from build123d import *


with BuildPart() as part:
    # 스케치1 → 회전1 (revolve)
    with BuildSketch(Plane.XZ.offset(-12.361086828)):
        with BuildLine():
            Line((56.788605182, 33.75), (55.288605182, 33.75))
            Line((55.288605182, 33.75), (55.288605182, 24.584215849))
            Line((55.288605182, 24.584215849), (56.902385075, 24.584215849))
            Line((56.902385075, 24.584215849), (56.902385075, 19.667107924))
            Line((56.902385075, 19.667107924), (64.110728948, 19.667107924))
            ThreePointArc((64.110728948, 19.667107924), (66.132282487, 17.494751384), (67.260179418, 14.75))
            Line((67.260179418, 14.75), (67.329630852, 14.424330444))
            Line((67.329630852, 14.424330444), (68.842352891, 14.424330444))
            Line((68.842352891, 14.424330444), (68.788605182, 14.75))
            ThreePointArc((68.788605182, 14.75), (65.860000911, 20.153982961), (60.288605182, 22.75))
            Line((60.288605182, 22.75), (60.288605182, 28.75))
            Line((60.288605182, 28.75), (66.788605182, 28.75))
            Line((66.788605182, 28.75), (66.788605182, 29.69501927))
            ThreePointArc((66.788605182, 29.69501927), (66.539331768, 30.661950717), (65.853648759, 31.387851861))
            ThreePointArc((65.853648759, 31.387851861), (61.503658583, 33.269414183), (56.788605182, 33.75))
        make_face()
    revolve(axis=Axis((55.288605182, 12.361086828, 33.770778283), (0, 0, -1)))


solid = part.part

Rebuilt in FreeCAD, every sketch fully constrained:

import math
import FreeCAD as App
import Part
import Sketcher

doc = App.newDocument("Part")
params = doc.addObject("Spreadsheet::Sheet", "Params")
for row, (alias, value) in enumerate([
    ("sketch1_radius", "2 mm"),
    ("sketch1_height", "6 mm"),
    ("sketch1_width", "1.5 mm"),
    ("sketch1_width2", "6.5 mm"),
    ("revolution_angle", "360 deg"),
], start=1):
    params.set(f"A{row}", alias)
    params.set(f"B{row}", "=" + value)
    params.setAlias(f"B{row}", alias)

body = doc.addObject("PartDesign::Body", "Body")

# Sketch on XZ plane
sketch1 = body.newObject("Sketcher::SketchObject", "Sketch")
sketch1.AttachmentSupport = (doc.getObject("XZ_Plane"), [""])
sketch1.MapMode = "FlatFace"
sketch1.AttachmentOffset = App.Placement(App.Vector(0, 0, -12.361087), App.Rotation())
sketch1.addGeometry([
    Part.LineSegment(App.Vector(56.79, 33.75, 0), App.Vector(55.29, 33.75, 0)),  # 0
    Part.LineSegment(App.Vector(55.29, 33.75, 0), App.Vector(55.29, 24.58, 0)),  # 1
    Part.LineSegment(App.Vector(55.29, 24.58, 0), App.Vector(56.9, 24.58, 0)),  # 2
    Part.LineSegment(App.Vector(56.9, 24.58, 0), App.Vector(56.9, 19.67, 0)),  # 3
    Part.LineSegment(App.Vector(56.9, 19.67, 0), App.Vector(64.11, 19.67, 0)),  # 4
    Part.ArcOfCircle(Part.Circle(App.Vector(59.15, 13.02, 0), App.Vector(0, 0, 1), 8.3), math.radians(12), math.radians(53)),  # 5
    Part.LineSegment(App.Vector(67.26, 14.75, 0), App.Vector(67.33, 14.42, 0)),  # 6
    Part.LineSegment(App.Vector(67.33, 14.42, 0), App.Vector(68.84, 14.42, 0)),  # 7
    Part.LineSegment(App.Vector(68.84, 14.42, 0), App.Vector(68.79, 14.75, 0)),  # 8
    Part.ArcOfCircle(Part.Circle(App.Vector(59.15, 13.02, 0), App.Vector(0, 0, 1), 9.8), math.radians(10), math.radians(83)),  # 9
    Part.LineSegment(App.Vector(60.29, 22.75, 0), App.Vector(60.29, 28.75, 0)),  # 10
    Part.LineSegment(App.Vector(60.29, 28.75, 0), App.Vector(66.79, 28.75, 0)),  # 11
    Part.LineSegment(App.Vector(66.79, 28.75, 0), App.Vector(66.79, 29.7, 0)),  # 12
    Part.ArcOfCircle(Part.Circle(App.Vector(64.79, 29.7, 0), App.Vector(0, 0, 1), 2), math.radians(0), math.radians(58)),  # 13
    Part.ArcOfCircle(Part.Circle(App.Vector(57.59, 18.26, 0), App.Vector(0, 0, 1), 15.52), math.radians(58), math.radians(93)),  # 14
], False)
sketch1.addGeometry(Part.LineSegment(App.Vector(55.29, 33.75, 0), App.Vector(55.29, 13.02, 0)), True)  # axis
sketch1.addConstraint([
    Sketcher.Constraint("Coincident", 0, 2, 1, 1),
    Sketcher.Constraint("Coincident", 1, 2, 2, 1),
    Sketcher.Constraint("Coincident", 2, 2, 3, 1),
    Sketcher.Constraint("Coincident", 3, 2, 4, 1),
    Sketcher.Constraint("Coincident", 4, 2, 5, 2),
    Sketcher.Constraint("Tangent", 5, 1, 6, 1),
    Sketcher.Constraint("Coincident", 6, 2, 7, 1),
    Sketcher.Constraint("Coincident", 7, 2, 8, 1),
    Sketcher.Constraint("Coincident", 8, 2, 9, 1),
    Sketcher.Constraint("Coincident", 9, 2, 10, 1),
    Sketcher.Constraint("Coincident", 10, 2, 11, 1),
    Sketcher.Constraint("Coincident", 11, 2, 12, 1),
    Sketcher.Constraint("Tangent", 12, 2, 13, 1),
    Sketcher.Constraint("Tangent", 13, 2, 14, 1),
    Sketcher.Constraint("Coincident", 14, 2, 0, 1),
    Sketcher.Constraint("Horizontal", 0),
    Sketcher.Constraint("Vertical", 1),
    Sketcher.Constraint("Horizontal", 2),
    Sketcher.Constraint("Vertical", 3),
    Sketcher.Constraint("Horizontal", 4),
    Sketcher.Constraint("Horizontal", 7),
    Sketcher.Constraint("Vertical", 10),
    Sketcher.Constraint("Horizontal", 11),
    Sketcher.Constraint("Vertical", 12),
    Sketcher.Constraint("Vertical", 15),
    Sketcher.Constraint("Coincident", 9, 3, 5, 3),
    Sketcher.Constraint("Coincident", 15, 1, 0, 2),
    Sketcher.Constraint("Horizontal", 5, 1, 8, 2),
    Sketcher.Constraint("Horizontal", 9, 3, 15, 2),
    Sketcher.Constraint("Radius", 13, 2.0),
    Sketcher.Constraint("DistanceY", 10, 1, 10, 2, 6.0),
    Sketcher.Constraint("DistanceX", 0, 2, 0, 1, 1.5),
    Sketcher.Constraint("DistanceX", 11, 1, 11, 2, 6.5),
    Sketcher.Constraint("DistanceX", 1, 2, 9, 2, 5.0),
    Sketcher.Constraint("DistanceY", 10, 2, 0, 2, 5.0),
    Sketcher.Constraint("DistanceY", -1, 1, 0, 2, 33.75),
    Sketcher.Constraint("DistanceY", -1, 1, 5, 1, 14.75),
    Sketcher.Constraint("Radius", 5, 8.297561),
    Sketcher.Constraint("Radius", 9, 9.797561),
    Sketcher.Constraint("Radius", 14, 15.51549),
    Sketcher.Constraint("DistanceY", 15, 2, 15, 1, 20.730601),
    Sketcher.Constraint("DistanceX", 2, 1, 2, 2, 1.61378),
    Sketcher.Constraint("DistanceY", 12, 1, 12, 2, 0.945019),
    Sketcher.Constraint("DistanceX", -1, 1, 5, 3, 59.145099),
    Sketcher.Constraint("DistanceX", 4, 2, 6, 2, 3.218902),
    Sketcher.Constraint("DistanceX", 4, 1, 4, 2, 7.208344),
    Sketcher.Constraint("DistanceX", 7, 1, 7, 2, 1.512722),
    Sketcher.Constraint("DistanceY", 1, 2, 1, 1, 9.165784),
])
sketch1.setExpression("Constraints[29]", "Params.sketch1_radius")
sketch1.setExpression("Constraints[30]", "Params.sketch1_height")
sketch1.setExpression("Constraints[31]", "Params.sketch1_width")
sketch1.setExpression("Constraints[32]", "Params.sketch1_width2")
revolution = body.newObject("PartDesign::Revolution", "Revolution")
revolution.Profile = sketch1
revolution.ReferenceAxis = (sketch1, ["Axis0"])
revolution.setExpression("Angle", "Params.revolution_angle")

doc.recompute()
